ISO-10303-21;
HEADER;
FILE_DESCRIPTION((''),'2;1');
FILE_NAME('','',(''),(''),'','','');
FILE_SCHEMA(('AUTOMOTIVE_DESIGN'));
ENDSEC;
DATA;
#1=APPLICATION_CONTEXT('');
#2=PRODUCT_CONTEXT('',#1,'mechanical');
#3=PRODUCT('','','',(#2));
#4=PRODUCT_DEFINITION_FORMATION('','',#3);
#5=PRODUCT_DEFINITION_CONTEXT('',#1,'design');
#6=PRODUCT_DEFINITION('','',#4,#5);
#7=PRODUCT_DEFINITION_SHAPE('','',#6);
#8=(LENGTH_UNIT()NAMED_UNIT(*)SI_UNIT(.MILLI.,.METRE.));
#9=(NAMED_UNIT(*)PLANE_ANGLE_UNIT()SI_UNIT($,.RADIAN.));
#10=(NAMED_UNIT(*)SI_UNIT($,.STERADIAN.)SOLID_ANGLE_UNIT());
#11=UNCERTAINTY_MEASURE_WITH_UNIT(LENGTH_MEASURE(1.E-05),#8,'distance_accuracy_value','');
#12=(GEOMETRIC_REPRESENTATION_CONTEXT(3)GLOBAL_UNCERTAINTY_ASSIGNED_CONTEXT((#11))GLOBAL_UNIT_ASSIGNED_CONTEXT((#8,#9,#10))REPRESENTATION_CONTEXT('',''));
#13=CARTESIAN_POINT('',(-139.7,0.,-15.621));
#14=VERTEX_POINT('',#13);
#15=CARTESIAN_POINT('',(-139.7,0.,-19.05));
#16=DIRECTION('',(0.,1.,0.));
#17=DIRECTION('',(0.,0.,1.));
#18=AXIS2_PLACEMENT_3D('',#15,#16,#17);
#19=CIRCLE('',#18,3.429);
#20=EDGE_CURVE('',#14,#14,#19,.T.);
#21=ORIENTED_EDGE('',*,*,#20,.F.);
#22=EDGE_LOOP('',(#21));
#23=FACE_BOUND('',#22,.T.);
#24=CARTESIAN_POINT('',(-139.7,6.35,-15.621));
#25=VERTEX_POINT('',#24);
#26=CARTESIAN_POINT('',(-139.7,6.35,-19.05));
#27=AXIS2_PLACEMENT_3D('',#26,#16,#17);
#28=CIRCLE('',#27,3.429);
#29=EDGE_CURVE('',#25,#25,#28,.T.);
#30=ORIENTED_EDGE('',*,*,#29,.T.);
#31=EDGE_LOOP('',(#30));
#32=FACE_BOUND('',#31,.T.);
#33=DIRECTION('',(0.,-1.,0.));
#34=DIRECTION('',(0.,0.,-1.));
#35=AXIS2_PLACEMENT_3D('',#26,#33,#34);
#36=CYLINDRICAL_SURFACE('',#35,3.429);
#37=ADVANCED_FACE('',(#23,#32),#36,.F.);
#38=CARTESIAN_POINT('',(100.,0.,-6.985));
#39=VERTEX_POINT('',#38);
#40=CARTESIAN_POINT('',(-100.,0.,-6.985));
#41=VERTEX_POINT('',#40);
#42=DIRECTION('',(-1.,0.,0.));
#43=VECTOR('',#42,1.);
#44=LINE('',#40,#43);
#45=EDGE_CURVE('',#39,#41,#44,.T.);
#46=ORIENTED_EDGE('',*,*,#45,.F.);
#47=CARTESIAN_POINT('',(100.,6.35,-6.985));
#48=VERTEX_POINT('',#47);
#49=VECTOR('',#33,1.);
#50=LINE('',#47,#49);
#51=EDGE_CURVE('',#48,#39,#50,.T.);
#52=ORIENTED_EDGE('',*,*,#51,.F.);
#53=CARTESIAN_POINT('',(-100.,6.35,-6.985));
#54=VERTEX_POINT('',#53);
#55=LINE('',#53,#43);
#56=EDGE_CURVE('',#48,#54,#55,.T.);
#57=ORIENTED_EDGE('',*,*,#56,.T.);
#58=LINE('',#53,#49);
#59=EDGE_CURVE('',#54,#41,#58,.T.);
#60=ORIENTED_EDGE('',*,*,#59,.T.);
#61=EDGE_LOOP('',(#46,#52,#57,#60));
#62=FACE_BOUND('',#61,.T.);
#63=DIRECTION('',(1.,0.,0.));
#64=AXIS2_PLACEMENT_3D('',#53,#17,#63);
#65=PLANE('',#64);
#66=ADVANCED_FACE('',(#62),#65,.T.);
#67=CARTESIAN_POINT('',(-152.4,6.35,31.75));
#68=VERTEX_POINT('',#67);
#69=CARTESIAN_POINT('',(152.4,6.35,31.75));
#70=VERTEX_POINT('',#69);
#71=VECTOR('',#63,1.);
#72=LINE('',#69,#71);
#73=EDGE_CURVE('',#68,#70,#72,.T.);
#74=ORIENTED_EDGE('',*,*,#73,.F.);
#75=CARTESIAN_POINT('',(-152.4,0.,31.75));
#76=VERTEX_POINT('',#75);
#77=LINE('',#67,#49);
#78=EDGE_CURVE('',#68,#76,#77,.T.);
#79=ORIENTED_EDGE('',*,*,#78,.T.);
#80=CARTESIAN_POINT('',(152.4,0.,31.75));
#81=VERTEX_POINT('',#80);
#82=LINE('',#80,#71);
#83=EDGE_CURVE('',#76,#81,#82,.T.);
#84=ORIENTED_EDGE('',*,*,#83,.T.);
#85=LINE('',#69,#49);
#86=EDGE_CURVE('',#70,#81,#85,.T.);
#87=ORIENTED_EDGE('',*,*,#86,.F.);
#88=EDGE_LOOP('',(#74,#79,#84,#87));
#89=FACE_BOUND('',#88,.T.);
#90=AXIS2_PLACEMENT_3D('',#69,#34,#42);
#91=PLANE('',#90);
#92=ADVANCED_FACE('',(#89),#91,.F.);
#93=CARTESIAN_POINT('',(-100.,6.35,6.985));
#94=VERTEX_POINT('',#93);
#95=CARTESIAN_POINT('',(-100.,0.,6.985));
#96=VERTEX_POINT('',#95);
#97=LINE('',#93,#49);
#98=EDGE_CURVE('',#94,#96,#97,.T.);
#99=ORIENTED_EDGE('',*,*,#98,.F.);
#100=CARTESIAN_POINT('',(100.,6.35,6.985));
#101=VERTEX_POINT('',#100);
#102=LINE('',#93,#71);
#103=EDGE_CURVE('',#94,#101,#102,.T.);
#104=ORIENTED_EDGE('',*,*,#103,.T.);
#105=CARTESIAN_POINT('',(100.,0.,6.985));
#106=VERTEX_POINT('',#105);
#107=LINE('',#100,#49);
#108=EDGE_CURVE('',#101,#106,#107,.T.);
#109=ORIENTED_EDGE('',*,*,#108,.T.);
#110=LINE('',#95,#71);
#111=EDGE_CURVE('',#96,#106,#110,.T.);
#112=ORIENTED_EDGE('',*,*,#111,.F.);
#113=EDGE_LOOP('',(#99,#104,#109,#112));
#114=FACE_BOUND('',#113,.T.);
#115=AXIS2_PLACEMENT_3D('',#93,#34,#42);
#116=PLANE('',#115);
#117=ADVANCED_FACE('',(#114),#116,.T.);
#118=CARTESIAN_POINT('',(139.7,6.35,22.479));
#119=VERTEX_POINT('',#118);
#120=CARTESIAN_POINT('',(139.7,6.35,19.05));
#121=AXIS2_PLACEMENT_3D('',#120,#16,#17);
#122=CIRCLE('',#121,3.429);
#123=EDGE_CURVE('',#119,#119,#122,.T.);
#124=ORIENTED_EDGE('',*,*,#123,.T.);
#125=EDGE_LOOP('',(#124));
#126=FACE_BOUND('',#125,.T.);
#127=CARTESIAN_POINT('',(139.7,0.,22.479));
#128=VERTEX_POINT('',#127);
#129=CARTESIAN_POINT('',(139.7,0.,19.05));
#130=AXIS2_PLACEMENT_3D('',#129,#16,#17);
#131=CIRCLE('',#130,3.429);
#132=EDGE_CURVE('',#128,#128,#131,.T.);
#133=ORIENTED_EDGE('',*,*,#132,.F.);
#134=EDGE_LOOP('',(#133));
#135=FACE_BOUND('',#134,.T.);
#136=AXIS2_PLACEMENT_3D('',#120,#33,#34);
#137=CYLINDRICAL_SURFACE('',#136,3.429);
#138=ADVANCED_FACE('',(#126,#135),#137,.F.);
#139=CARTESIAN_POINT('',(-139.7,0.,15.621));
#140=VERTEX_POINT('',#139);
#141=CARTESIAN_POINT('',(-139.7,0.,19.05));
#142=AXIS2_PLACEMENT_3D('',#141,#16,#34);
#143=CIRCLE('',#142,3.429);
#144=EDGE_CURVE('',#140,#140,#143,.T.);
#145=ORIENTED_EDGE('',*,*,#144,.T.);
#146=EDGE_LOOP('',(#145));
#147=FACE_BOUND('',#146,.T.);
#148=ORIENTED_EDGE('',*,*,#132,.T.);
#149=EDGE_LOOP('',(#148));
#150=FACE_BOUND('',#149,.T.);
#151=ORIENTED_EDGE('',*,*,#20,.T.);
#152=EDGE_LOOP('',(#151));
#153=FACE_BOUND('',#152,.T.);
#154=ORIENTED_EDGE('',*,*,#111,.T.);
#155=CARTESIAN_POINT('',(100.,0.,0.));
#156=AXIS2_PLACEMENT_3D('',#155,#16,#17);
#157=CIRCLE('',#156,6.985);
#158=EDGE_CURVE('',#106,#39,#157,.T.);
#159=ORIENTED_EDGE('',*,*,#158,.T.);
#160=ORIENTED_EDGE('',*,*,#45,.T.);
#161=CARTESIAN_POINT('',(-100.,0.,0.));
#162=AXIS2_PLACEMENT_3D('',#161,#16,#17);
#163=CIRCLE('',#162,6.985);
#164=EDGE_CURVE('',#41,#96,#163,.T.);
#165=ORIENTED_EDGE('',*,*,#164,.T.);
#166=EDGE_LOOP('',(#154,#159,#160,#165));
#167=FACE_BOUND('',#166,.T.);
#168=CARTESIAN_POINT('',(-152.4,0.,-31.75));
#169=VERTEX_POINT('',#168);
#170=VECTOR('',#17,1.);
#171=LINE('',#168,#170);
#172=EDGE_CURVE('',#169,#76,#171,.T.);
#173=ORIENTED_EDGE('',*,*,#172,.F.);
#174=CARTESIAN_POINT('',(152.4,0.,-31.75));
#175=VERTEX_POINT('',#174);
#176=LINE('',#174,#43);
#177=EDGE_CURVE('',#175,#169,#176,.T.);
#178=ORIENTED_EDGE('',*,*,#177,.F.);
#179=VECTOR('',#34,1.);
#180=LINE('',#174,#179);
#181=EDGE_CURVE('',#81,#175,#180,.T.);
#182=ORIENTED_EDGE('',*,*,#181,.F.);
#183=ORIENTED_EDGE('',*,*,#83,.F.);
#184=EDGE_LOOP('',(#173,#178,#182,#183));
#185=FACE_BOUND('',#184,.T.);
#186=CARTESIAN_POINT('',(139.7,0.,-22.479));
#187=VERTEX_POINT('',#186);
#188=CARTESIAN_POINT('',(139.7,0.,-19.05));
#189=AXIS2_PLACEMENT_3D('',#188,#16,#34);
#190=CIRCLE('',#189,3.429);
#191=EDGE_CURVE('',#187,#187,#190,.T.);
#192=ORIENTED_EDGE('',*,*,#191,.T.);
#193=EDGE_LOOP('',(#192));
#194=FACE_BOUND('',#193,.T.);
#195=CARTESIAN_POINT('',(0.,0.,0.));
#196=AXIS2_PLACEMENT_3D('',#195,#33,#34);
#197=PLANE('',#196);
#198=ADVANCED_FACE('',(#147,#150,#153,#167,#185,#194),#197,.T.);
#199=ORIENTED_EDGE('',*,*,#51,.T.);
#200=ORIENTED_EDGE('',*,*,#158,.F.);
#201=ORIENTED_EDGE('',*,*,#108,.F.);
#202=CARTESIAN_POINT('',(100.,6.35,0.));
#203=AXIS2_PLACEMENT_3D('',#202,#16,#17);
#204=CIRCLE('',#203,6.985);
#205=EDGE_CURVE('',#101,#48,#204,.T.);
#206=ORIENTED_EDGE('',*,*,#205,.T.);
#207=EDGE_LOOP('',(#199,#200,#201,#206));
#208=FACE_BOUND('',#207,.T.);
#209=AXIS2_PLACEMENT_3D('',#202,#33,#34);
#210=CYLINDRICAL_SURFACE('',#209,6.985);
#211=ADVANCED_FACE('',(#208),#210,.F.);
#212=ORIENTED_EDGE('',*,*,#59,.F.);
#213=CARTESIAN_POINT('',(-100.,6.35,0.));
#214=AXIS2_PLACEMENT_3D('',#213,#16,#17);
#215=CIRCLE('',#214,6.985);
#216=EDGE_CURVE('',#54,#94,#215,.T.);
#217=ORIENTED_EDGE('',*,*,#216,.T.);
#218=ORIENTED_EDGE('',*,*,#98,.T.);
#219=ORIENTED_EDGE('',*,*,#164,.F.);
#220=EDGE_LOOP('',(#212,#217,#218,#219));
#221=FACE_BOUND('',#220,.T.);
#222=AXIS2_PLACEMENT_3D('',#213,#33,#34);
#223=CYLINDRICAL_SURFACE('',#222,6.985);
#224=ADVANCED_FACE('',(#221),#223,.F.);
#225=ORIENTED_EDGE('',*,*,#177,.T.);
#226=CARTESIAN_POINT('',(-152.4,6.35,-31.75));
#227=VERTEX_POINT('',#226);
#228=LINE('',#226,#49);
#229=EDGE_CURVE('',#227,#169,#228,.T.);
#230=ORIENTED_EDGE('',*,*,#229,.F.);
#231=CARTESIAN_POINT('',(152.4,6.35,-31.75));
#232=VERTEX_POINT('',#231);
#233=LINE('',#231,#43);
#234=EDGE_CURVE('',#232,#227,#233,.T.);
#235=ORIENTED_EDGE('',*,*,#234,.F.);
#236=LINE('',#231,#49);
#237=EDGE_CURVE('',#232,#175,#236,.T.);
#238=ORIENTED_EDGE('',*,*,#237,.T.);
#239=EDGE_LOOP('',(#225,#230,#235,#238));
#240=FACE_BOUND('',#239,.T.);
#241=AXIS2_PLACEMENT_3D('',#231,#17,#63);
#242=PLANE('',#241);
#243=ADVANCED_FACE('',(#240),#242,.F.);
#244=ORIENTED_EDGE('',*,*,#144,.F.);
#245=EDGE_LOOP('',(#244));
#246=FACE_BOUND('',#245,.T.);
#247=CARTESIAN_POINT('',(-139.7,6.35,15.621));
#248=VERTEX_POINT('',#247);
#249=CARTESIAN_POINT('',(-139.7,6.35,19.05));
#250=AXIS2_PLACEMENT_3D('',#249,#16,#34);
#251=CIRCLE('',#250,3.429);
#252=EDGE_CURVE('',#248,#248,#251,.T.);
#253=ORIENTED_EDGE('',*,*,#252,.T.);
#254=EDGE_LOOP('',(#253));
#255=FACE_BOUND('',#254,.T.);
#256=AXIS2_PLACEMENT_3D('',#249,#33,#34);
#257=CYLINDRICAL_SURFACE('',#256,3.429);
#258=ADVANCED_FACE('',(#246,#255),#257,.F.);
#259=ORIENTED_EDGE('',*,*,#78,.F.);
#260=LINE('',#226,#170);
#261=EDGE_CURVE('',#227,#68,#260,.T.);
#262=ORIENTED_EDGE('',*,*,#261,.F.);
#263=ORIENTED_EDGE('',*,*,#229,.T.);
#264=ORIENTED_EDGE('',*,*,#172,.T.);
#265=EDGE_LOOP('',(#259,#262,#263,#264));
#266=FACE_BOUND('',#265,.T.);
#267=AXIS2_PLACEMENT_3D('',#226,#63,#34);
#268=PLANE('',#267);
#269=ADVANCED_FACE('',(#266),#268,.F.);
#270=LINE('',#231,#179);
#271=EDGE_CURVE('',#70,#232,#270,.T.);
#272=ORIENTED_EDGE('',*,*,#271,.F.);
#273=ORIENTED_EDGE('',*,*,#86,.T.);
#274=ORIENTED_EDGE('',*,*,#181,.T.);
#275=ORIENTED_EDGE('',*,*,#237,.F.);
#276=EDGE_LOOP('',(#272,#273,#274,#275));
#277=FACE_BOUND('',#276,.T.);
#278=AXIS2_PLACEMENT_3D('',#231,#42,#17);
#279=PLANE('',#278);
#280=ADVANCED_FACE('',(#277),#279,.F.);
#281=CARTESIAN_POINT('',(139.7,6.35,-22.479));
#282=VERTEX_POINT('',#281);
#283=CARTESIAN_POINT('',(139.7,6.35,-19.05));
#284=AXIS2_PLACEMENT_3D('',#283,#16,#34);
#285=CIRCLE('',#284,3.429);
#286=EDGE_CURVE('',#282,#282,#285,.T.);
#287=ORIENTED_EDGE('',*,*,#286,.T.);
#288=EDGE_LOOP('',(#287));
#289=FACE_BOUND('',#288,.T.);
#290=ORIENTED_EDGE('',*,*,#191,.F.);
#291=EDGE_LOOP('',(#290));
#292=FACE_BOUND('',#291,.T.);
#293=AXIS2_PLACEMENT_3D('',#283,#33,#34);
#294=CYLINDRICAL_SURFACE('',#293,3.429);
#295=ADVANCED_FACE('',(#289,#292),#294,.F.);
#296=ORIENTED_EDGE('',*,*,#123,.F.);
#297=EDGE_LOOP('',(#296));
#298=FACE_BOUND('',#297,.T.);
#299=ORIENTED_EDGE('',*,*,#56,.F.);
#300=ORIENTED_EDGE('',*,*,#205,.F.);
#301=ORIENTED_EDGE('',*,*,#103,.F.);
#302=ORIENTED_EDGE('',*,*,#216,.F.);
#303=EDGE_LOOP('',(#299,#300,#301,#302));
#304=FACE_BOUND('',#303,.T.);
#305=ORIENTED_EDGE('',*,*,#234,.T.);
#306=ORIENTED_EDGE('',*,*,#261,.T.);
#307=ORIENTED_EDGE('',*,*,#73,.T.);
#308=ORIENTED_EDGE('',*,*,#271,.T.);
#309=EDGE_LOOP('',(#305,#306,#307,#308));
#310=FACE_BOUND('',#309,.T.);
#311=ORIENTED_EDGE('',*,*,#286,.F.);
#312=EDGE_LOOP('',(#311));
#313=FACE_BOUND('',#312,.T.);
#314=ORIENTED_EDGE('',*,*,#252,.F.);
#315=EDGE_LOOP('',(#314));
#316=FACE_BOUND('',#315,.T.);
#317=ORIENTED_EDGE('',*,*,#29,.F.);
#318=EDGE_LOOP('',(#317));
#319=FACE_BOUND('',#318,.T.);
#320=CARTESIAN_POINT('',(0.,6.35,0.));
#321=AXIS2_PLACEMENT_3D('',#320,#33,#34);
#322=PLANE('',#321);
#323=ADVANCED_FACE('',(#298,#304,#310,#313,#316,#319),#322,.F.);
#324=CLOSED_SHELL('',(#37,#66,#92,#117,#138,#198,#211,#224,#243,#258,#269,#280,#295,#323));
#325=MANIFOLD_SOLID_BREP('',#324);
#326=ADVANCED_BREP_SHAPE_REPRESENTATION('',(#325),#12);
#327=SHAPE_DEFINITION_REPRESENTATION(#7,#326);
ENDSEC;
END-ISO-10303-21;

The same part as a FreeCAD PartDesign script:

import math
import FreeCAD as App
import Part
import Sketcher
Q = App.Units.Quantity

doc = App.newDocument("Part")
params = doc.addObject("Spreadsheet::Sheet", "Params")
for row, (alias, value) in enumerate([
    ("sketch1_diameter", "0.27 in"),
    ("sketch1_width", "12 in"),
    ("sketch1_height", "2.5 in"),
    ("sketch1_radius", "0.275 in"),
    ("pad1_length", "0.25 in"),
], start=1):
    params.set(f"A{row}", alias)
    params.set(f"B{row}", "=" + value)
    params.setAlias(f"B{row}", alias)

body = doc.addObject("PartDesign::Body", "Body")

sketch1 = body.newObject("Sketcher::SketchObject", "Sketch")
sketch1.AttachmentSupport = (doc.getObject("XZ_Plane"), [""])
sketch1.MapMode = "FlatFace"
sketch1.addGeometry(Part.LineSegment(App.Vector(-152.4, -31.8, 0), App.Vector(-152.4, 31.8, 0)), False)
sketch1.addGeometry(Part.LineSegment(App.Vector(-152.4, 31.8, 0), App.Vector(152.4, 31.8, 0)), False)
sketch1.addGeometry(Part.LineSegment(App.Vector(152.4, 31.8, 0), App.Vector(152.4, -31.8, 0)), False)
sketch1.addGeometry(Part.LineSegment(App.Vector(152.4, -31.8, 0), App.Vector(-152.4, -31.8, 0)), False)
sketch1.addGeometry(Part.Circle(App.Vector(-139.7, 19.1, 0), App.Vector(0, 0, 1), 3.4), False)
sketch1.addGeometry(Part.Circle(App.Vector(139.7, 19.1, 0), App.Vector(0, 0, 1), 3.4), False)
sketch1.addGeometry(Part.ArcOfCircle(Part.Circle(App.Vector(-100, 0, 0), App.Vector(0, 0, 1), 7), math.radians(90), math.radians(270)), False)
sketch1.addGeometry(Part.LineSegment(App.Vector(-100, -7, 0), App.Vector(100, -7, 0)), False)
sketch1.addGeometry(Part.ArcOfCircle(Part.Circle(App.Vector(100, 0, 0), App.Vector(0, 0, 1), 7), math.radians(-90), math.radians(90)), False)
sketch1.addGeometry(Part.LineSegment(App.Vector(100, 7, 0), App.Vector(-100, 7, 0)), False)
sketch1.addGeometry(Part.Circle(App.Vector(-139.7, -19.1, 0), App.Vector(0, 0, 1), 3.4), False)
sketch1.addGeometry(Part.Circle(App.Vector(139.7, -19.1, 0), App.Vector(0, 0, 1), 3.4), False)
sketch1.addConstraint(Sketcher.Constraint("Coincident", 0, 2, 1, 1))
sketch1.addConstraint(Sketcher.Constraint("Coincident", 1, 2, 2, 1))
sketch1.addConstraint(Sketcher.Constraint("Coincident", 2, 2, 3, 1))
sketch1.addConstraint(Sketcher.Constraint("Coincident", 3, 2, 0, 1))
sketch1.addConstraint(Sketcher.Constraint("Tangent", 6, 2, 7, 1))
sketch1.addConstraint(Sketcher.Constraint("Tangent", 7, 2, 8, 1))
sketch1.addConstraint(Sketcher.Constraint("Tangent", 8, 2, 9, 1))
sketch1.addConstraint(Sketcher.Constraint("Tangent", 9, 2, 6, 1))
sketch1.addConstraint(Sketcher.Constraint("Vertical", 0))
sketch1.addConstraint(Sketcher.Constraint("Horizontal", 1))
sketch1.addConstraint(Sketcher.Constraint("Vertical", 2))
sketch1.addConstraint(Sketcher.Constraint("Horizontal", 3))
sketch1.addConstraint(Sketcher.Constraint("Horizontal", 7))
sketch1.addConstraint(Sketcher.Constraint("Horizontal", 9))
sketch1.addConstraint(Sketcher.Constraint("Equal", 4, 5))
sketch1.addConstraint(Sketcher.Constraint("Equal", 5, 10))
sketch1.addConstraint(Sketcher.Constraint("Equal", 10, 11))
sketch1.addConstraint(Sketcher.Constraint("Symmetric", 6, 3, 8, 3, -1, 1))
sketch1.addConstraint(Sketcher.Constraint("Symmetric", 5, 3, 10, 3, -1, 1))
sketch1.addConstraint(Sketcher.Constraint("Symmetric", 4, 3, 11, 3, -1, 1))
sketch1.addConstraint(Sketcher.Constraint("Symmetric", 0, 2, 2, 2, -1, 1))
sketch1.addConstraint(Sketcher.Constraint("Symmetric", 4, 3, 5, 3, -2))
sketch1.addConstraint(Sketcher.Constraint("Diameter", 4, Q("0.27 in")))
sketch1.addConstraint(Sketcher.Constraint("DistanceX", 1, 1, 1, 2, Q("12 in")))
sketch1.addConstraint(Sketcher.Constraint("DistanceY", 0, 1, 0, 2, Q("2.5 in")))
sketch1.addConstraint(Sketcher.Constraint("Radius", 6, Q("0.275 in")))
sketch1.addConstraint(Sketcher.Constraint("DistanceX", 4, 3, 5, 3, Q("11 in")))
sketch1.addConstraint(Sketcher.Constraint("DistanceY", 10, 3, 0, 2, Q("2 in")))
sketch1.addConstraint(Sketcher.Constraint("DistanceX", 7, 1, 7, 2, 200.0))
sketch1.setExpression("Constraints[22]", "Params.sketch1_diameter")
sketch1.setExpression("Constraints[23]", "Params.sketch1_width")
sketch1.setExpression("Constraints[24]", "Params.sketch1_height")
sketch1.setExpression("Constraints[25]", "Params.sketch1_radius")
pad1 = body.newObject("PartDesign::Pad", "Pad")
pad1.Profile = sketch1
pad1.setExpression("Length", "Params.pad1_length")
pad1.Reversed = True

doc.recompute()
